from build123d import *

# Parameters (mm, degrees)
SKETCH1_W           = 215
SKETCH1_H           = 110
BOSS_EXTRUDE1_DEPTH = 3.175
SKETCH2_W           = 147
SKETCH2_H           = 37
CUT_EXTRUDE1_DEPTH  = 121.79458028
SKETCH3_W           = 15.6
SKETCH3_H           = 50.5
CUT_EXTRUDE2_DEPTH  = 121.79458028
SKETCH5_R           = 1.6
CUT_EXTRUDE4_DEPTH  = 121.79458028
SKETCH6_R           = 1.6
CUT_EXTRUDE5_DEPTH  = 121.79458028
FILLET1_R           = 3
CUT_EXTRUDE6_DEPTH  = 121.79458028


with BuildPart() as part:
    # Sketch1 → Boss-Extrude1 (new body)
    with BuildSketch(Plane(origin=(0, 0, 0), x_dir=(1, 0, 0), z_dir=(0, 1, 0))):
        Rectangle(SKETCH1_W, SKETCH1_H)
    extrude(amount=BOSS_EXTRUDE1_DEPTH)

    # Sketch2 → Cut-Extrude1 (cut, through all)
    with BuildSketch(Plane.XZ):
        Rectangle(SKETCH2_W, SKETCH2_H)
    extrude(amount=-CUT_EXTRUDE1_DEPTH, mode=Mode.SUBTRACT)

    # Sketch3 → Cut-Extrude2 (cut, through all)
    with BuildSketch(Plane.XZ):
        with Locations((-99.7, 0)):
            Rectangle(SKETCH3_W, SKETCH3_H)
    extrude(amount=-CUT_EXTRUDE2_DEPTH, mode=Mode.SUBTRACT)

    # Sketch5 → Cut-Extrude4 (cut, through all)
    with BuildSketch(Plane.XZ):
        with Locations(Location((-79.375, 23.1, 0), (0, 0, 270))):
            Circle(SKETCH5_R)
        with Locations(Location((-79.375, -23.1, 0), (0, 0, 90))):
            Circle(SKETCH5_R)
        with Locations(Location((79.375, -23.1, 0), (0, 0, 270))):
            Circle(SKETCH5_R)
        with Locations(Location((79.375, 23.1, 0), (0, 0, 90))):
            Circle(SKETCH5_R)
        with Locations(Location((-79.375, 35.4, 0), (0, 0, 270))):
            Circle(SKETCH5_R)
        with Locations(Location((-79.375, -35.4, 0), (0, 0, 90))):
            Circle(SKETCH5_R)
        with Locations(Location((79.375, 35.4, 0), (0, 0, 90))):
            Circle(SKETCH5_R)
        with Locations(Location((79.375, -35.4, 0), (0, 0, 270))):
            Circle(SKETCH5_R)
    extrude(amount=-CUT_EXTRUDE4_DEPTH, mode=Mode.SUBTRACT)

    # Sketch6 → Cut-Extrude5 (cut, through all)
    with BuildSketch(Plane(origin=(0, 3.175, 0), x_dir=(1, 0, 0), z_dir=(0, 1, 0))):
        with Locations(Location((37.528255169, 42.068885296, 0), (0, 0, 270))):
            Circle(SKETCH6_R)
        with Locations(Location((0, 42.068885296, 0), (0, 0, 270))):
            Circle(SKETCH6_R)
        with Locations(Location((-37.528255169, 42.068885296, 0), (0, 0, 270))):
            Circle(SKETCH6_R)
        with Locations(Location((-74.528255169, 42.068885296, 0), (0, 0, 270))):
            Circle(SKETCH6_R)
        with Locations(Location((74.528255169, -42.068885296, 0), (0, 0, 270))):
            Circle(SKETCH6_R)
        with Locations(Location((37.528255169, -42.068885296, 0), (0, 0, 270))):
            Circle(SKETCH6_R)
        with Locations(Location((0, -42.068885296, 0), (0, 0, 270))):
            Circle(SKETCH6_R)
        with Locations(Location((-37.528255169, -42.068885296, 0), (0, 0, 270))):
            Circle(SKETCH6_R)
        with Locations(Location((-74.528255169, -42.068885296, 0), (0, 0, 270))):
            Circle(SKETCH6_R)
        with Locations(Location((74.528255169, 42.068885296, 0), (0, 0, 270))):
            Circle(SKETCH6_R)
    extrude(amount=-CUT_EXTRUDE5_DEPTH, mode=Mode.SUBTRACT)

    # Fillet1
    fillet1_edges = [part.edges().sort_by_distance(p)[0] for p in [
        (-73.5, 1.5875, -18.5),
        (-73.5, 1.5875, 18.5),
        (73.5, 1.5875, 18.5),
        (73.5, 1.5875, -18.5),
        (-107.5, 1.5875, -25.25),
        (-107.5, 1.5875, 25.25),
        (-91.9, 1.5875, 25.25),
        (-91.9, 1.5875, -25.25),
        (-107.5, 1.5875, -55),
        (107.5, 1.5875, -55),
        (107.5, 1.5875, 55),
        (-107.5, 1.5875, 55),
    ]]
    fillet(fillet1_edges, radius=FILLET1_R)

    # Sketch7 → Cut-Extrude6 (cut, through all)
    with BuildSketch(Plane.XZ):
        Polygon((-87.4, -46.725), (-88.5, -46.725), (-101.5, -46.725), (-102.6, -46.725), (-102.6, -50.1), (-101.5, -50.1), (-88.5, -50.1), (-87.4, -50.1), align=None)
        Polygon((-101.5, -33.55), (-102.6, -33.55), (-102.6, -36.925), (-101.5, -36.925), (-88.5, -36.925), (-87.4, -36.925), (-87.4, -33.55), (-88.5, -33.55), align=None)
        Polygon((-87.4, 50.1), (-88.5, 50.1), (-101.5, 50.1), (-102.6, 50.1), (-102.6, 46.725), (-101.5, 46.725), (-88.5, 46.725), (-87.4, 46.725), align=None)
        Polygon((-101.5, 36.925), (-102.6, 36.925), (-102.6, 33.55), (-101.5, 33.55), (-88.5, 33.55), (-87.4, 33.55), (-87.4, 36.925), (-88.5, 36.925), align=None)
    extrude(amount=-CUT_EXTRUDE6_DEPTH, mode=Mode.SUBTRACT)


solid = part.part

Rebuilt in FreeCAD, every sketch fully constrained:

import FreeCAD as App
import Part
import Sketcher
Q = App.Units.Quantity


def edges_at(feature, points):
    """Names of the edges that pass closest to the given points."""
    edges = feature.Shape.Edges
    near = lambda p: min(range(len(edges)), key=lambda i: edges[i].distToShape(Part.Vertex(*p))[0])
    return sorted({f"Edge{near(p) + 1}" for p in points})


def add_polygon(sketch, points):
    """Adds a closed chain of lines whose ends are joined by coincident constraints."""
    first, n = sketch.GeometryCount, len(points)
    for a, b in zip(points, points[1:] + points[:1]):
        sketch.addGeometry(Part.LineSegment(App.Vector(*a, 0), App.Vector(*b, 0)), False)
    for i in range(n):
        sketch.addConstraint(Sketcher.Constraint("Coincident", first + i, 2, first + (i + 1) % n, 1))

doc = App.newDocument("Part")
params = doc.addObject("Spreadsheet::Sheet", "Params")
for row, (alias, value) in enumerate([
    ("sketch1_width", "215 mm"),
    ("sketch1_height", "110 mm"),
    ("pad1_length", "3.175 mm"),
    ("sketch2_width", "147 mm"),
    ("sketch2_height", "37 mm"),
    ("sketch3_width", "15.6 mm"),
    ("sketch3_height", "50.5 mm"),
    ("sketch4_diameter", "3.2 mm"),
    ("sketch5_diameter", "3.2 mm"),
    ("fillet_radius", "3 mm"),
    ("sketch6_width", "15.2 mm"),
], start=1):
    params.set(f"A{row}", alias)
    params.set(f"B{row}", "=" + value)
    params.setAlias(f"B{row}", alias)

body = doc.addObject("PartDesign::Body", "Body")

sketch1 = body.newObject("Sketcher::SketchObject", "Sketch")
sketch1.AttachmentSupport = (doc.getObject("XZ_Plane"), [""])
sketch1.MapMode = "FlatFace"
add_polygon(sketch1, [(-108, -55), (-108, 55), (108, 55), (108, -55)])
sketch1.addConstraint(Sketcher.Constraint("Vertical", 0))
sketch1.addConstraint(Sketcher.Constraint("Horizontal", 1))
sketch1.addConstraint(Sketcher.Constraint("Vertical", 2))
sketch1.addConstraint(Sketcher.Constraint("Horizontal", 3))
sketch1.addConstraint(Sketcher.Constraint("Symmetric", 0, 2, 2, 2, -1, 1))
sketch1.addConstraint(Sketcher.Constraint("DistanceX", 1, 1, 1, 2, Q("215 mm")))
sketch1.addConstraint(Sketcher.Constraint("DistanceY", 0, 1, 0, 2, Q("110 mm")))
sketch1.setExpression("Constraints[9]", "Params.sketch1_width")
sketch1.setExpression("Constraints[10]", "Params.sketch1_height")
pad1 = body.newObject("PartDesign::Pad", "Pad")
pad1.Profile = sketch1
pad1.setExpression("Length", "Params.pad1_length")
pad1.Reversed = True

sketch2 = body.newObject("Sketcher::SketchObject", "Sketch001")
sketch2.AttachmentSupport = (doc.getObject("XZ_Plane"), [""])
sketch2.MapMode = "FlatFace"
add_polygon(sketch2, [(-74, 18), (-74, -18), (74, -18), (74, 18)])
sketch2.addConstraint(Sketcher.Constraint("Vertical", 0))
sketch2.addConstraint(Sketcher.Constraint("Horizontal", 1))
sketch2.addConstraint(Sketcher.Constraint("Vertical", 2))
sketch2.addConstraint(Sketcher.Constraint("Horizontal", 3))
sketch2.addConstraint(Sketcher.Constraint("Symmetric", 0, 2, 2, 2, -1, 1))
sketch2.addConstraint(Sketcher.Constraint("DistanceX", 1, 1, 1, 2, Q("147 mm")))
sketch2.addConstraint(Sketcher.Constraint("DistanceY", 0, 2, 0, 1, Q("37 mm")))
sketch2.setExpression("Constraints[9]", "Params.sketch2_width")
sketch2.setExpression("Constraints[10]", "Params.sketch2_height")
pocket1 = body.newObject("PartDesign::Pocket", "Pocket")
pocket1.Profile = sketch2
pocket1.Type = "ThroughAll"

sketch3 = body.newObject("Sketcher::SketchObject", "Sketch002")
sketch3.AttachmentSupport = (doc.getObject("XZ_Plane"), [""])
sketch3.MapMode = "FlatFace"
add_polygon(sketch3, [(-108, 25), (-108, -25), (-92, -25), (-92, 25)])
sketch3.addConstraint(Sketcher.Constraint("Vertical", 0))
sketch3.addConstraint(Sketcher.Constraint("Horizontal", 1))
sketch3.addConstraint(Sketcher.Constraint("Vertical", 2))
sketch3.addConstraint(Sketcher.Constraint("Horizontal", 3))
sketch3.addConstraint(Sketcher.Constraint("DistanceX", 1, 1, 1, 2, Q("15.6 mm")))
sketch3.addConstraint(Sketcher.Constraint("DistanceY", 0, 2, 0, 1, Q("50.5 mm")))
sketch3.addConstraint(Sketcher.Constraint("DistanceX", 0, 2, -1, 1, Q("107.5 mm")))
sketch3.addConstraint(Sketcher.Constraint("DistanceY", 0, 2, -1, 1, Q("25.25 mm")))
sketch3.setExpression("Constraints[8]", "Params.sketch3_width")
sketch3.setExpression("Constraints[9]", "Params.sketch3_height")
pocket2 = body.newObject("PartDesign::Pocket", "Pocket001")
pocket2.Profile = sketch3
pocket2.Type = "ThroughAll"

sketch4 = body.newObject("Sketcher::SketchObject", "Sketch003")
sketch4.AttachmentSupport = (doc.getObject("XZ_Plane"), [""])
sketch4.MapMode = "FlatFace"
sketch4.addGeometry(Part.Circle(App.Vector(-79.4, 23.1, 0), App.Vector(0, 0, 1), 1.6), False)
sketch4.addGeometry(Part.Circle(App.Vector(-79.4, -23.1, 0), App.Vector(0, 0, 1), 1.6), False)
sketch4.addGeometry(Part.Circle(App.Vector(79.4, -23.1, 0), App.Vector(0, 0, 1), 1.6), False)
sketch4.addGeometry(Part.Circle(App.Vector(79.4, 23.1, 0), App.Vector(0, 0, 1), 1.6), False)
sketch4.addGeometry(Part.Circle(App.Vector(-79.4, 35.4, 0), App.Vector(0, 0, 1), 1.6), False)
sketch4.addGeometry(Part.Circle(App.Vector(-79.4, -35.4, 0), App.Vector(0, 0, 1), 1.6), False)
sketch4.addGeometry(Part.Circle(App.Vector(79.4, 35.4, 0), App.Vector(0, 0, 1), 1.6), False)
sketch4.addGeometry(Part.Circle(App.Vector(79.4, -35.4, 0), App.Vector(0, 0, 1), 1.6), False)
sketch4.addConstraint(Sketcher.Constraint("Equal", 0, 1))
sketch4.addConstraint(Sketcher.Constraint("Equal", 1, 2))
sketch4.addConstraint(Sketcher.Constraint("Equal", 2, 3))
sketch4.addConstraint(Sketcher.Constraint("Equal", 3, 4))
sketch4.addConstraint(Sketcher.Constraint("Equal", 4, 5))
sketch4.addConstraint(Sketcher.Constraint("Equal", 5, 6))
sketch4.addConstraint(Sketcher.Constraint("Equal", 6, 7))
sketch4.addConstraint(Sketcher.Constraint("Symmetric", 0, 3, 2, 3, -1, 1))
sketch4.addConstraint(Sketcher.Constraint("Symmetric", 1, 3, 3, 3, -1, 1))
sketch4.addConstraint(Sketcher.Constraint("Symmetric", 5, 3, 6, 3, -1, 1))
sketch4.addConstraint(Sketcher.Constraint("Symmetric", 4, 3, 7, 3, -1, 1))
sketch4.addConstraint(Sketcher.Constraint("Symmetric", 1, 3, 2, 3, -2))
sketch4.addConstraint(Sketcher.Constraint("Symmetric", 4, 3, 6, 3, -2))
sketch4.addConstraint(Sketcher.Constraint("Vertical", 1, 3, 4, 3))
sketch4.addConstraint(Sketcher.Constraint("Diameter", 0, Q("3.2 mm")))
sketch4.addConstraint(Sketcher.Constraint("DistanceY", -1, 1, 0, 3, Q("23.1 mm")))
sketch4.addConstraint(Sketcher.Constraint("DistanceY", -1, 1, 4, 3, Q("35.4 mm")))
sketch4.addConstraint(Sketcher.Constraint("DistanceX", 1, 3, 2, 3, Q("158.75 mm")))
sketch4.setExpression("Constraints[14]", "Params.sketch4_diameter")
pocket3 = body.newObject("PartDesign::Pocket", "Pocket002")
pocket3.Profile = sketch4
pocket3.Type = "ThroughAll"

sketch5 = body.newObject("Sketcher::SketchObject", "Sketch004")
sketch5.AttachmentSupport = (doc.getObject("XZ_Plane"), [""])
sketch5.MapMode = "FlatFace"
sketch5.AttachmentOffset = App.Placement(App.Vector(0, 0, -3.175), App.Rotation())
sketch5.addGeometry(Part.Circle(App.Vector(37.5, -42.1, 0), App.Vector(0, 0, 1), 1.6), False)
sketch5.addGeometry(Part.Circle(App.Vector(0, -42.1, 0), App.Vector(0, 0, 1), 1.6), False)
sketch5.addGeometry(Part.Circle(App.Vector(-37.5, -42.1, 0), App.Vector(0, 0, 1), 1.6), False)
sketch5.addGeometry(Part.Circle(App.Vector(-74.5, -42.1, 0), App.Vector(0, 0, 1), 1.6), False)
sketch5.addGeometry(Part.Circle(App.Vector(74.5, 42.1, 0), App.Vector(0, 0, 1), 1.6), False)
sketch5.addGeometry(Part.Circle(App.Vector(37.5, 42.1, 0), App.Vector(0, 0, 1), 1.6), False)
sketch5.addGeometry(Part.Circle(App.Vector(0, 42.1, 0), App.Vector(0, 0, 1), 1.6), False)
sketch5.addGeometry(Part.Circle(App.Vector(-37.5, 42.1, 0), App.Vector(0, 0, 1), 1.6), False)
sketch5.addGeometry(Part.Circle(App.Vector(-74.5, 42.1, 0), App.Vector(0, 0, 1), 1.6), False)
sketch5.addGeometry(Part.Circle(App.Vector(74.5, -42.1, 0), App.Vector(0, 0, 1), 1.6), False)
sketch5.addConstraint(Sketcher.Constraint("Equal", 0, 1))
sketch5.addConstraint(Sketcher.Constraint("Equal", 1, 2))
sketch5.addConstraint(Sketcher.Constraint("Equal", 2, 3))
sketch5.addConstraint(Sketcher.Constraint("Equal", 3, 4))
sketch5.addConstraint(Sketcher.Constraint("Equal", 4, 5))
sketch5.addConstraint(Sketcher.Constraint("Equal", 5, 6))
sketch5.addConstraint(Sketcher.Constraint("Equal", 6, 7))
sketch5.addConstraint(Sketcher.Constraint("Equal", 7, 8))
sketch5.addConstraint(Sketcher.Constraint("Equal", 8, 9))
sketch5.addConstraint(Sketcher.Constraint("Symmetric", 3, 3, 4, 3, -1, 1))
sketch5.addConstraint(Sketcher.Constraint("Symmetric", 2, 3, 5, 3, -1, 1))
sketch5.addConstraint(Sketcher.Constraint("Symmetric", 1, 3, 6, 3, -1, 1))
sketch5.addConstraint(Sketcher.Constraint("Symmetric", 0, 3, 7, 3, -1, 1))
sketch5.addConstraint(Sketcher.Constraint("Symmetric", 8, 3, 9, 3, -1, 1))
sketch5.addConstraint(Sketcher.Constraint("Symmetric", 0, 3, 2, 3, -2))
sketch5.addConstraint(Sketcher.Constraint("Symmetric", 4, 3, 8, 3, -2))
sketch5.addConstraint(Sketcher.Constraint("PointOnObject", 1, 3, -2))
sketch5.addConstraint(Sketcher.Constraint("Horizontal", 0, 3, 1, 3))
sketch5.addConstraint(Sketcher.Constraint("Horizontal", 2, 3, 3, 3))
sketch5.addConstraint(Sketcher.Constraint("Diameter", 0, Q("3.2 mm")))
sketch5.addConstraint(Sketcher.Constraint("DistanceX", 3, 3, 2, 3, Q("37 mm")))
sketch5.addConstraint(Sketcher.Constraint("DistanceX", 2, 3, 0, 3, Q("75.05651 mm")))
sketch5.addConstraint(Sketcher.Constraint("DistanceY", 0, 3, 4, 3, Q("84.137771 mm")))
sketch5.setExpression("Constraints[19]", "Params.sketch5_diameter")
pocket4 = body.newObject("PartDesign::Pocket", "Pocket003")
pocket4.Profile = sketch5
pocket4.Type = "ThroughAll"
pocket4.Reversed = True
doc.recompute()

fillet = body.newObject("PartDesign::Fillet", "Fillet")
fillet.Base = (pocket4, edges_at(pocket4, [
    (-73.5, 1.587, -18.5),
    (-73.5, 1.587, 18.5),
    (73.5, 1.587, 18.5),
    (73.5, 1.587, -18.5),
    (-107.5, 1.587, -25.25),
    (-107.5, 1.587, 25.25),
    (-91.9, 1.587, 25.25),
    (-91.9, 1.587, -25.25),
    (-107.5, 1.587, -55),
    (107.5, 1.587, -55),
    (107.5, 1.587, 55),
    (-107.5, 1.587, 55),
]))
fillet.setExpression("Radius", "Params.fillet_radius")

sketch6 = body.newObject("Sketcher::SketchObject", "Sketch005")
sketch6.AttachmentSupport = (doc.getObject("XZ_Plane"), [""])
sketch6.MapMode = "FlatFace"
add_polygon(sketch6, [(-87.4, -46.7), (-102.6, -46.7), (-102.6, -50.1), (-87.4, -50.1)])
add_polygon(sketch6, [(-102.6, -33.5), (-102.6, -36.9), (-87.4, -36.9), (-87.4, -33.5)])
add_polygon(sketch6, [(-87.4, 50.1), (-102.6, 50.1), (-102.6, 46.7), (-87.4, 46.7)])
add_polygon(sketch6, [(-102.6, 36.9), (-102.6, 33.5), (-87.4, 33.5), (-87.4, 36.9)])
sketch6.addConstraint(Sketcher.Constraint("Horizontal", 0))
sketch6.addConstraint(Sketcher.Constraint("Vertical", 1))
sketch6.addConstraint(Sketcher.Constraint("Horizontal", 2))
sketch6.addConstraint(Sketcher.Constraint("Vertical", 3))
sketch6.addConstraint(Sketcher.Constraint("Vertical", 4))
sketch6.addConstraint(Sketcher.Constraint("Horizontal", 5))
sketch6.addConstraint(Sketcher.Constraint("Vertical", 6))
sketch6.addConstraint(Sketcher.Constraint("Horizontal", 7))
sketch6.addConstraint(Sketcher.Constraint("Horizontal", 8))
sketch6.addConstraint(Sketcher.Constraint("Vertical", 9))
sketch6.addConstraint(Sketcher.Constraint("Horizontal", 10))
sketch6.addConstraint(Sketcher.Constraint("Vertical", 11))
sketch6.addConstraint(Sketcher.Constraint("Vertical", 12))
sketch6.addConstraint(Sketcher.Constraint("Horizontal", 13))
sketch6.addConstraint(Sketcher.Constraint("Vertical", 14))
sketch6.addConstraint(Sketcher.Constraint("Horizontal", 15))
sketch6.addConstraint(Sketcher.Constraint("Symmetric", 1, 2, 8, 2, -1))
sketch6.addConstraint(Sketcher.Constraint("Symmetric", 3, 2, 10, 2, -1))
sketch6.addConstraint(Sketcher.Constraint("Symmetric", 7, 2, 12, 2, -1))
sketch6.addConstraint(Sketcher.Constraint("Symmetric", 5, 2, 14, 2, -1))
sketch6.addConstraint(Sketcher.Constraint("Vertical", 1, 2, 4, 2))
sketch6.addConstraint(Sketcher.Constraint("Vertical", 3, 2, 5, 2))
sketch6.addConstraint(Sketcher.Constraint("Equal", 3, 4))
sketch6.addConstraint(Sketcher.Constraint("DistanceX", 0, 2, 0, 1, Q("15.2 mm")))
sketch6.addConstraint(Sketcher.Constraint("DistanceX", 0, 2, -1, 1, Q("102.6 mm")))
sketch6.addConstraint(Sketcher.Constraint("DistanceY", 1, 2, -1, 1, Q("50.1 mm")))
sketch6.addConstraint(Sketcher.Constraint("DistanceY", 0, 2, 4, 2, Q("9.8 mm")))
sketch6.addConstraint(Sketcher.Constraint("DistanceY", 7, 2, 12, 2, Q("67.1 mm")))
sketch6.setExpression("Constraints[39]", "Params.sketch6_width")
pocket5 = body.newObject("PartDesign::Pocket", "Pocket004")
pocket5.Profile = sketch6
pocket5.Type = "ThroughAll"

doc.recompute()
